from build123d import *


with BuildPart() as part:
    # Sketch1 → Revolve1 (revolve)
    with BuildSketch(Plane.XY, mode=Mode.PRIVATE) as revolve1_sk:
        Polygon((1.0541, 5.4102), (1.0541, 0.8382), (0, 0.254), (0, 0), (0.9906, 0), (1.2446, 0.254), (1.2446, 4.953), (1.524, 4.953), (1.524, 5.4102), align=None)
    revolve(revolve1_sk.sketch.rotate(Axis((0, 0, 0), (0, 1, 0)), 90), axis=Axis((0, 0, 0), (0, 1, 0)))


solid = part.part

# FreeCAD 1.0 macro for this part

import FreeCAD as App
import Part
import Sketcher
from FreeCAD import Vector
Q = App.Units.Quantity


def add_polygon(sketch, points):
    """Adds a closed chain of lines whose ends are joined by coincident constraints."""
    first, n = sketch.GeometryCount, len(points)
    for a, b in zip(points, points[1:] + points[:1]):
        sketch.addGeometry(Part.LineSegment(App.Vector(*a, 0), App.Vector(*b, 0)), False)
    for i in range(n):
        sketch.addConstraint(Sketcher.Constraint("Coincident", first + i, 2, first + (i + 1) % n, 1))

doc = App.newDocument("Part")
body = doc.addObject("PartDesign::Body", "Body")

sketch1 = body.newObject("Sketcher::SketchObject", "Sketch")
sketch1.AttachmentSupport = (doc.getObject("XY_Plane"), [""])
sketch1.MapMode = "FlatFace"
add_polygon(sketch1, [(1.05, 5.41), (1.05, 0.84), (0, 0.25), (0, 0), (0.99, 0), (1.24, 0.25), (1.24, 4.95), (1.52, 4.95), (1.52, 5.41)])
sketch1.addConstraint([
    Sketcher.Constraint("Vertical", 0),
    Sketcher.Constraint("Vertical", 2),
    Sketcher.Constraint("Horizontal", 3),
    Sketcher.Constraint("Vertical", 5),
    Sketcher.Constraint("Horizontal", 6),
    Sketcher.Constraint("Vertical", 7),
    Sketcher.Constraint("Horizontal", 8),
    Sketcher.Constraint("Coincident", 2, 2, -1, 1),
    Sketcher.Constraint("Horizontal", 1, 2, 4, 2),
    Sketcher.Constraint("Angle", 4, Q("45 deg")),
    Sketcher.Constraint("DistanceY", 0, 2, 0, 1, Q("0.18 in")),
    Sketcher.Constraint("DistanceY", 2, 2, 2, 1, Q("0.01 in")),
    Sketcher.Constraint("DistanceX", 3, 1, 3, 2, Q("0.039 in")),
    Sketcher.Constraint("DistanceX", 6, 1, 6, 2, Q("0.011 in")),
    Sketcher.Constraint("DistanceY", 5, 1, 5, 2, Q("0.185 in")),
    Sketcher.Constraint("DistanceY", 7, 1, 7, 2, Q("0.018 in")),
    Sketcher.Constraint("DistanceX", 8, 2, 8, 1, Q("0.0185 in")),
])
revolution = body.newObject("PartDesign::Revolution", "Revolution")
revolution.Profile = sketch1
revolution.ReferenceAxis = (sketch1, ["V_Axis"])
revolution.Angle = 360

doc.recompute()
